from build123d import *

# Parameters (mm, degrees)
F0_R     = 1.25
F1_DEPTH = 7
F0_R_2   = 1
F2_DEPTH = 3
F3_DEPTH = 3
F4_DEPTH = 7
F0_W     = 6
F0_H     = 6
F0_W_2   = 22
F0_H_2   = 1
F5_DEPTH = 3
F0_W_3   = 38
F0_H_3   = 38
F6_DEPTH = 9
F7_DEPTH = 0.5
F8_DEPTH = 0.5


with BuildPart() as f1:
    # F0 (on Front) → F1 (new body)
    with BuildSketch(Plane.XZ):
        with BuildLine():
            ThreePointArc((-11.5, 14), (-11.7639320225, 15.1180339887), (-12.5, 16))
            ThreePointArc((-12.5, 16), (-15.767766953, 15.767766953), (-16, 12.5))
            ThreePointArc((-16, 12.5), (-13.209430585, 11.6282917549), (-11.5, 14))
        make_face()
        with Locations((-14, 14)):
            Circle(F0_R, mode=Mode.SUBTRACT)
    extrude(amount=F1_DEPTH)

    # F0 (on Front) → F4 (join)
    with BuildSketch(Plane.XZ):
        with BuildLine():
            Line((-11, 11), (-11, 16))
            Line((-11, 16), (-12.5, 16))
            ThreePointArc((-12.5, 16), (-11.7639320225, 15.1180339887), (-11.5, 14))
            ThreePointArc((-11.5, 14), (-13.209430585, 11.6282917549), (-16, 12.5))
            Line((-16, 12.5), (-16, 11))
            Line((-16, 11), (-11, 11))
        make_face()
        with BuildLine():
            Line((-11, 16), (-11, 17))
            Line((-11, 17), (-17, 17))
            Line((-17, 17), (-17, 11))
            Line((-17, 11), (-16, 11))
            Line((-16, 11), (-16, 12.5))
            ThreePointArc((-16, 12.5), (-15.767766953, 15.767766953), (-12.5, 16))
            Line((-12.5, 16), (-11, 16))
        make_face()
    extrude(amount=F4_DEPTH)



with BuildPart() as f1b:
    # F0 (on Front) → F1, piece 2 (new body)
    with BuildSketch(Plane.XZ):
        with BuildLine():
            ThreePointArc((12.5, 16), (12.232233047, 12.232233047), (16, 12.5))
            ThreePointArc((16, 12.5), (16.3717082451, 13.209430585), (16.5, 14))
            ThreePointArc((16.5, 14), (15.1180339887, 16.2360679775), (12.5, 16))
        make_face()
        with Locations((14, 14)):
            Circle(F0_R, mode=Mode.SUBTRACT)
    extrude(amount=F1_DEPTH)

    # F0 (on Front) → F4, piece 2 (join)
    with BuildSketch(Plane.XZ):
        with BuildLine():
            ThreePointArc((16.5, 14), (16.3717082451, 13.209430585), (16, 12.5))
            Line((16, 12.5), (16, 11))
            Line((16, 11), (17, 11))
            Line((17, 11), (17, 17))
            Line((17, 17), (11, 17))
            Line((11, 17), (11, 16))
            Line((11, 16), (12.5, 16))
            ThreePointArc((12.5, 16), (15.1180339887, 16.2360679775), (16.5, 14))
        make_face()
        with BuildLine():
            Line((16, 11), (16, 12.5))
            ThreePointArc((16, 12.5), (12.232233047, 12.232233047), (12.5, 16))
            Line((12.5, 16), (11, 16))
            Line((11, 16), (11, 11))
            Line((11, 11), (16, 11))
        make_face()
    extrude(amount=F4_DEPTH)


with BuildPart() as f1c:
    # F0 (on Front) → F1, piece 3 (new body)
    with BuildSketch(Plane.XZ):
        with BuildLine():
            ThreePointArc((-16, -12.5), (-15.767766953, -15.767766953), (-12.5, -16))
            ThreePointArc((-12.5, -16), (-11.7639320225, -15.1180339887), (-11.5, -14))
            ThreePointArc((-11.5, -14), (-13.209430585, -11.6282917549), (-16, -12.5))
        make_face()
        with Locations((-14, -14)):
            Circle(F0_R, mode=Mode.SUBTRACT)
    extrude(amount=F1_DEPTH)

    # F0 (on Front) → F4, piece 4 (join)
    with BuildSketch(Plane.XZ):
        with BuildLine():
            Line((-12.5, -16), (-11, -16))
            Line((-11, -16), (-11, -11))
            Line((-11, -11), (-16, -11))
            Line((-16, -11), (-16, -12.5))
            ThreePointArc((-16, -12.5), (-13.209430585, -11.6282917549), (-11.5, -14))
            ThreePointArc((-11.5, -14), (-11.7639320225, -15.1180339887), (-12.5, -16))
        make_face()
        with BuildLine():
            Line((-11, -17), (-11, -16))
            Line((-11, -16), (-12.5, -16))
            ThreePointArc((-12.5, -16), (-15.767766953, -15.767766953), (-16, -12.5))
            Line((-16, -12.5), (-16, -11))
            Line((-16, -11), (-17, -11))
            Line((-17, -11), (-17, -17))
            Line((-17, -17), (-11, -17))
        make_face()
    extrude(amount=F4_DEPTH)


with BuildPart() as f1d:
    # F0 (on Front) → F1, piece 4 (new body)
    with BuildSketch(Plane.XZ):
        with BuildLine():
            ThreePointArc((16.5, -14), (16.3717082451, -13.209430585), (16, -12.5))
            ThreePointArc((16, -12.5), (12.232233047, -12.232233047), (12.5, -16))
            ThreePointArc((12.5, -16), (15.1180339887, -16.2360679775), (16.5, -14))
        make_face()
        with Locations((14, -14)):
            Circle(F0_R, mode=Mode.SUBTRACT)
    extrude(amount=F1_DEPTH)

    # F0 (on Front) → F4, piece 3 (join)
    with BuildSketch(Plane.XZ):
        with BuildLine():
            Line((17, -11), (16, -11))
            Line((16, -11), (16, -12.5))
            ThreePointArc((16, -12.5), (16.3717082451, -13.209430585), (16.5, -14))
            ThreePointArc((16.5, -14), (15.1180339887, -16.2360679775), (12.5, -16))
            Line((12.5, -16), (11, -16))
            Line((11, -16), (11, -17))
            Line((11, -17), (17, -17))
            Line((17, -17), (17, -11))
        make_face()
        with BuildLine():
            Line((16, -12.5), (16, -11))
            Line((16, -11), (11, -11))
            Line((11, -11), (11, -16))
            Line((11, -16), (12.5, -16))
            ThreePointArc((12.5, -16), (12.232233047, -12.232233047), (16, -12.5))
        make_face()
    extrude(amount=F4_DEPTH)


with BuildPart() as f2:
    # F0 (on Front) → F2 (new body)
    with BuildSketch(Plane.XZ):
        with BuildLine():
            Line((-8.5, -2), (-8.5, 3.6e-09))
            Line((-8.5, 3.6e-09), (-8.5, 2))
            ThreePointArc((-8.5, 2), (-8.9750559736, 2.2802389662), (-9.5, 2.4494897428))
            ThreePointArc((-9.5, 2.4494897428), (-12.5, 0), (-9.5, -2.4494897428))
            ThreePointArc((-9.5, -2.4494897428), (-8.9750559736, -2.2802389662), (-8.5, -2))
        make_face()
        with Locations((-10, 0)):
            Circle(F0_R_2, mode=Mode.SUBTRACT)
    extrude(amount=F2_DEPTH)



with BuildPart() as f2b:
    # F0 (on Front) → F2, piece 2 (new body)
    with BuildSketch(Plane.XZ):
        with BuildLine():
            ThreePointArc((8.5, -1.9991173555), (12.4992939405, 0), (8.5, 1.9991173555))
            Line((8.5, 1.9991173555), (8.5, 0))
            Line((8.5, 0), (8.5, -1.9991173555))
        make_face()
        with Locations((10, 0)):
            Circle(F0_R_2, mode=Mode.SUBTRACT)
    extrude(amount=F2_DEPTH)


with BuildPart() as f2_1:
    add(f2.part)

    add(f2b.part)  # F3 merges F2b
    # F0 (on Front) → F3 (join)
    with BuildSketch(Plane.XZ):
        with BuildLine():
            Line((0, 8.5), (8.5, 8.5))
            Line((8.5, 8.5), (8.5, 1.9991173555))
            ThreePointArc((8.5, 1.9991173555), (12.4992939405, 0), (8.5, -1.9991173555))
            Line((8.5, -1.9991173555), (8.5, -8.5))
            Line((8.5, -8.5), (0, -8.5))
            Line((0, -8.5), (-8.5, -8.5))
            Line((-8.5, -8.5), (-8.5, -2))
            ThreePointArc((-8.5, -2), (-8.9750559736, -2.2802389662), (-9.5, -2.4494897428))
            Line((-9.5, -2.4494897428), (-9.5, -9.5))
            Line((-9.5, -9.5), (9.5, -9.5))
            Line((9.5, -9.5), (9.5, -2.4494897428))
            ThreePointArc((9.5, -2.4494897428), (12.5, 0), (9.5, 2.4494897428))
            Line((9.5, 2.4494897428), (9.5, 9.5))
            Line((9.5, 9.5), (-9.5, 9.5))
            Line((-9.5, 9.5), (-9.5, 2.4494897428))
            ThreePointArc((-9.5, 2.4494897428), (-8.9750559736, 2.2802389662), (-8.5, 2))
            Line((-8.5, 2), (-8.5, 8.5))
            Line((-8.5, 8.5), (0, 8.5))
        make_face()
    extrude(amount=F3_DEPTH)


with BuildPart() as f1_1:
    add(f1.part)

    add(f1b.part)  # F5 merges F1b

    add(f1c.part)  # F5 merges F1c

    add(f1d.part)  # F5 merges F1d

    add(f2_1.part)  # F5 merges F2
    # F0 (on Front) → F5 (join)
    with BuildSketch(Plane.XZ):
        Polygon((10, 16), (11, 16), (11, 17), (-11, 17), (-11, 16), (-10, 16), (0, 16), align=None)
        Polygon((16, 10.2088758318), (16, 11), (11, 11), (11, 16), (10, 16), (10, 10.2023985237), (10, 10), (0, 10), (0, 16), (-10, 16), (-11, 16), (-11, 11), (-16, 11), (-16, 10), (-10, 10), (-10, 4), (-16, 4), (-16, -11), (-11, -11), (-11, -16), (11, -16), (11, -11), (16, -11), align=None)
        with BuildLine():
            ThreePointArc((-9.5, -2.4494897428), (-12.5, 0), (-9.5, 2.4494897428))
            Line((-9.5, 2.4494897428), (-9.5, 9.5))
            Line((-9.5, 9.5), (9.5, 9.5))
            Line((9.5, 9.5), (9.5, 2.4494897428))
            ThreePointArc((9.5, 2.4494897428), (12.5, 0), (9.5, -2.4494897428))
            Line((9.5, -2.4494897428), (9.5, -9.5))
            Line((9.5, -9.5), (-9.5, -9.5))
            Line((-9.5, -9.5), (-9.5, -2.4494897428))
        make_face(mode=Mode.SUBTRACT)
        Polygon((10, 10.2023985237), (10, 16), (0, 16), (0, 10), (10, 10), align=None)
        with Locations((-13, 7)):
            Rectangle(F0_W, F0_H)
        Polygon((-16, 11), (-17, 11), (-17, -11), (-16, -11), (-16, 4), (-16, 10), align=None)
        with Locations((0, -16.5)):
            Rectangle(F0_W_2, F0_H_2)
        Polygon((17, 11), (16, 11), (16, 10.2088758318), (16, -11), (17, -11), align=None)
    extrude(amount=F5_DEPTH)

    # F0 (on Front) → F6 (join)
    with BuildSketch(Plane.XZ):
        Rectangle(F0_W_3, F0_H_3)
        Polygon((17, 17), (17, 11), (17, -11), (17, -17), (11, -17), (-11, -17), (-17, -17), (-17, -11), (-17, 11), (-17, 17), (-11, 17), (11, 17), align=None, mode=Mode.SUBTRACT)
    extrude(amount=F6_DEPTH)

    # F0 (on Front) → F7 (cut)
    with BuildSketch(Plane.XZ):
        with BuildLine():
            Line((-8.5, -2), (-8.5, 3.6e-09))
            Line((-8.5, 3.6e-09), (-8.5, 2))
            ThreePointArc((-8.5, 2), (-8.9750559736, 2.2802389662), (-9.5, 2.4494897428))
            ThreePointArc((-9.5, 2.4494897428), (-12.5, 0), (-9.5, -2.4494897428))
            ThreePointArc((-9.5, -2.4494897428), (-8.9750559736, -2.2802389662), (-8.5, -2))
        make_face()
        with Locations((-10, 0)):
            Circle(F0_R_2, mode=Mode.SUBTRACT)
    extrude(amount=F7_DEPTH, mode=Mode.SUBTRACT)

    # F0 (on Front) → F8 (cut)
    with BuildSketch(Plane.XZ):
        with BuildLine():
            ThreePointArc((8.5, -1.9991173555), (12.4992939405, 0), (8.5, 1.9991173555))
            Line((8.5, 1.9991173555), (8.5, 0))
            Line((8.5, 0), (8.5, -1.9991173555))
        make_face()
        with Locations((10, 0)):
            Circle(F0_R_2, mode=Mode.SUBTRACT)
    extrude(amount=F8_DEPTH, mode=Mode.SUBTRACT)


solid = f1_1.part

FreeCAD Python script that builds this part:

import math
import FreeCAD as App
import Part
import Sketcher
from FreeCAD import Vector


def add_polygon(sketch, points):
    """Adds a closed chain of lines whose ends are joined by coincident constraints."""
    first, n = sketch.GeometryCount, len(points)
    for a, b in zip(points, points[1:] + points[:1]):
        sketch.addGeometry(Part.LineSegment(App.Vector(*a, 0), App.Vector(*b, 0)), False)
    for i in range(n):
        sketch.addConstraint(Sketcher.Constraint("Coincident", first + i, 2, first + (i + 1) % n, 1))

doc = App.newDocument("Part")
body = doc.addObject("PartDesign::Body", "Body")

# Sketch on XZ plane
sketch1 = body.newObject("Sketcher::SketchObject", "Sketch")
sketch1.AttachmentSupport = (doc.getObject("XZ_Plane"), [""])
sketch1.MapMode = "FlatFace"
sketch1.addGeometry([
    Part.ArcOfCircle(Part.Circle(Vector(-14, 14, 0), Vector(0, 0, 1), 2.5), math.radians(0), math.radians(53.130102)),
    Part.ArcOfCircle(Part.Circle(Vector(-14, 14, 0), Vector(0, 0, 1), 2.5), math.radians(53.130102), math.radians(360)),
    Part.Circle(Vector(-14, 14, 0), Vector(0, 0, 1), 1.25),
], False)
sketch1.addConstraint([
    Sketcher.Constraint("Tangent", 0, 1, 1, 2),
    Sketcher.Constraint("Coincident", 1, 1, 0, 2),
    Sketcher.Constraint("Coincident", 2, 3, 0, 3),
    Sketcher.Constraint("Horizontal", 2, 3, 0, 1),
    Sketcher.Constraint("Diameter", 2, 2.5),
    Sketcher.Constraint("Radius", 0, 2.5),
    Sketcher.Constraint("DistanceX", 0, 3, -1, 1, 14.0),
    Sketcher.Constraint("DistanceY", -1, 1, 0, 3, 14.0),
    Sketcher.Constraint("DistanceY", -1, 1, 1, 1, 16.0),
])
pad1 = body.newObject("PartDesign::Pad", "Pad")
pad1.Profile = sketch1
pad1.Length = 7

# Sketch on XZ plane
sketch2 = body.newObject("Sketcher::SketchObject", "Sketch001")
sketch2.AttachmentSupport = (doc.getObject("XZ_Plane"), [""])
sketch2.MapMode = "FlatFace"
add_polygon(sketch2, [(-11, 11), (-11, 17), (-17, 17), (-17, 11)])  # lines 0-3
sketch2.addGeometry(Part.ArcOfCircle(Part.Circle(Vector(-14, 14, 0), Vector(0, 0, 1), 2.5), math.radians(0), math.radians(53.130102)), False)  # 4
sketch2.addGeometry(Part.ArcOfCircle(Part.Circle(Vector(-14, 14, 0), Vector(0, 0, 1), 2.5), math.radians(53.130102), math.radians(360)), False)  # 5
sketch2.addConstraint([
    Sketcher.Constraint("Tangent", 4, 1, 5, 2),
    Sketcher.Constraint("Coincident", 5, 1, 4, 2),
    Sketcher.Constraint("Vertical", 0),
    Sketcher.Constraint("Horizontal", 1),
    Sketcher.Constraint("Vertical", 2),
    Sketcher.Constraint("Horizontal", 3),
    Sketcher.Constraint("Horizontal", 5, 3, 4, 1),
    Sketcher.Constraint("Equal", 3, 0),
    Sketcher.Constraint("Radius", 4, 2.5),
    Sketcher.Constraint("DistanceX", 1, 2, 1, 1, 6.0),
    Sketcher.Constraint("DistanceX", 4, 3, -1, 1, 14.0),
    Sketcher.Constraint("DistanceY", -1, 1, 4, 3, 14.0),
    Sketcher.Constraint("DistanceX", 0, 2, -1, 1, 11.0),
    Sketcher.Constraint("DistanceY", -1, 1, 0, 2, 17.0),
    Sketcher.Constraint("DistanceY", -1, 1, 5, 1, 16.0),
])
pad2 = body.newObject("PartDesign::Pad", "Pad001")
pad2.Profile = sketch2
pad2.Length = 7
body2 = doc.addObject("PartDesign::Body", "Body001")

# Sketch on XZ plane
sketch3 = body2.newObject("Sketcher::SketchObject", "Sketch002")
sketch3.AttachmentSupport = (doc.getObject("XZ_Plane001"), [""])
sketch3.MapMode = "FlatFace"
sketch3.addGeometry([
    Part.ArcOfCircle(Part.Circle(Vector(14, 14, 0), Vector(0, 0, 1), 2.5), math.radians(126.869898), math.radians(323.130102)),
    Part.ArcOfCircle(Part.Circle(Vector(14, 14, 0), Vector(0, 0, 1), 2.5), math.radians(-36.869898), math.radians(0)),
    Part.ArcOfCircle(Part.Circle(Vector(14, 14, 0), Vector(0, 0, 1), 2.5), math.radians(0), math.radians(126.869898)),
    Part.Circle(Vector(14, 14, 0), Vector(0, 0, 1), 1.25),
], False)
sketch3.addConstraint([
    Sketcher.Constraint("Tangent", 0, 2, 1, 1),
    Sketcher.Constraint("Tangent", 1, 2, 2, 1),
    Sketcher.Constraint("Tangent", 2, 2, 0, 1),
    Sketcher.Constraint("Coincident", 3, 3, 0, 3),
    Sketcher.Constraint("Horizontal", 3, 3, 1, 2),
    Sketcher.Constraint("Diameter", 3, 2.5),
    Sketcher.Constraint("Radius", 0, 2.5),
    Sketcher.Constraint("DistanceX", -1, 1, 0, 3, 14.0),
    Sketcher.Constraint("DistanceY", -1, 1, 0, 3, 14.0),
    Sketcher.Constraint("DistanceX", -1, 1, 0, 2, 16.0),
    Sketcher.Constraint("DistanceY", -1, 1, 2, 2, 16.0),
])
pad3 = body2.newObject("PartDesign::Pad", "Pad002")
pad3.Profile = sketch3
pad3.Length = 7

# Sketch on XZ plane
sketch4 = body2.newObject("Sketcher::SketchObject", "Sketch003")
sketch4.AttachmentSupport = (doc.getObject("XZ_Plane001"), [""])
sketch4.MapMode = "FlatFace"
add_polygon(sketch4, [(17, 11), (17, 17), (11, 17), (11, 11)])  # lines 0-3
sketch4.addGeometry(Part.ArcOfCircle(Part.Circle(Vector(14, 14, 0), Vector(0, 0, 1), 2.5), math.radians(-36.869898), math.radians(0)), False)  # 4
sketch4.addGeometry(Part.ArcOfCircle(Part.Circle(Vector(14, 14, 0), Vector(0, 0, 1), 2.5), math.radians(126.869898), math.radians(323.130102)), False)  # 5
sketch4.addGeometry(Part.ArcOfCircle(Part.Circle(Vector(14, 14, 0), Vector(0, 0, 1), 2.5), math.radians(0), math.radians(126.869898)), False)  # 6
sketch4.addConstraint([
    Sketcher.Constraint("Tangent", 4, 1, 5, 2),
    Sketcher.Constraint("Tangent", 5, 1, 6, 2),
    Sketcher.Constraint("Tangent", 6, 1, 4, 2),
    Sketcher.Constraint("Vertical", 0),
    Sketcher.Constraint("Horizontal", 1),
    Sketcher.Constraint("Vertical", 2),
    Sketcher.Constraint("Horizontal", 3),
    Sketcher.Constraint("Horizontal", 5, 3, 6, 1),
    Sketcher.Constraint("Equal", 3, 0),
    Sketcher.Constraint("Radius", 4, 2.5),
    Sketcher.Constraint("DistanceX", 1, 2, 1, 1, 6.0),
    Sketcher.Constraint("DistanceX", -1, 1, 4, 3, 14.0),
    Sketcher.Constraint("DistanceY", -1, 1, 4, 3, 14.0),
    Sketcher.Constraint("DistanceX", -1, 1, 0, 2, 17.0),
    Sketcher.Constraint("DistanceY", -1, 1, 0, 2, 17.0),
    Sketcher.Constraint("DistanceX", -1, 1, 4, 1, 16.0),
    Sketcher.Constraint("DistanceY", -1, 1, 5, 1, 16.0),
])
pad4 = body2.newObject("PartDesign::Pad", "Pad003")
pad4.Profile = sketch4
pad4.Length = 7
body3 = doc.addObject("PartDesign::Body", "Body002")

# Sketch on XZ plane
sketch5 = body3.newObject("Sketcher::SketchObject", "Sketch004")
sketch5.AttachmentSupport = (doc.getObject("XZ_Plane002"), [""])
sketch5.MapMode = "FlatFace"
sketch5.addGeometry([
    Part.ArcOfCircle(Part.Circle(Vector(-14, -14, 0), Vector(0, 0, 1), 2.5), math.radians(-53.130102), math.radians(0)),
    Part.ArcOfCircle(Part.Circle(Vector(-14, -14, 0), Vector(0, 0, 1), 2.5), math.radians(0), math.radians(306.869898)),
    Part.Circle(Vector(-14, -14, 0), Vector(0, 0, 1), 1.25),
], False)
sketch5.addConstraint([
    Sketcher.Constraint("Tangent", 0, 1, 1, 2),
    Sketcher.Constraint("Coincident", 1, 1, 0, 2),
    Sketcher.Constraint("Coincident", 2, 3, 0, 3),
    Sketcher.Constraint("Horizontal", 2, 3, 1, 1),
    Sketcher.Constraint("Diameter", 2, 2.5),
    Sketcher.Constraint("Radius", 0, 2.5),
    Sketcher.Constraint("DistanceX", 0, 3, -1, 1, 14.0),
    Sketcher.Constraint("DistanceY", 0, 3, -1, 1, 14.0),
    Sketcher.Constraint("DistanceY", 0, 1, -1, 1, 16.0),
])
pad5 = body3.newObject("PartDesign::Pad", "Pad004")
pad5.Profile = sketch5
pad5.Length = 7

# Sketch on XZ plane
sketch6 = body3.newObject("Sketcher::SketchObject", "Sketch005")
sketch6.AttachmentSupport = (doc.getObject("XZ_Plane002"), [""])
sketch6.MapMode = "FlatFace"
add_polygon(sketch6, [(-11, -11), (-17, -11), (-17, -17), (-11, -17)])  # lines 0-3
sketch6.addGeometry(Part.ArcOfCircle(Part.Circle(Vector(-14, -14, 0), Vector(0, 0, 1), 2.5), math.radians(-53.130102), math.radians(0)), False)  # 4
sketch6.addGeometry(Part.ArcOfCircle(Part.Circle(Vector(-14, -14, 0), Vector(0, 0, 1), 2.5), math.radians(0), math.radians(306.869898)), False)  # 5
sketch6.addConstraint([
    Sketcher.Constraint("Tangent", 4, 1, 5, 2),
    Sketcher.Constraint("Coincident", 5, 1, 4, 2),
    Sketcher.Constraint("Horizontal", 0),
    Sketcher.Constraint("Vertical", 1),
    Sketcher.Constraint("Horizontal", 2),
    Sketcher.Constraint("Vertical", 3),
    Sketcher.Constraint("Horizontal", 4, 3, 5, 1),
    Sketcher.Constraint("Equal", 2, 1),
    Sketcher.Constraint("Radius", 4, 2.5),
    Sketcher.Constraint("DistanceX", 0, 2, 0, 1, 6.0),
    Sketcher.Constraint("DistanceX", 4, 3, -1, 1, 14.0),
    Sketcher.Constraint("DistanceY", 4, 3, -1, 1, 14.0),
    Sketcher.Constraint("DistanceX", 0, 2, -1, 1, 17.0),
    Sketcher.Constraint("DistanceY", 0, 2, -1, 1, 11.0),
    Sketcher.Constraint("DistanceY", 4, 1, -1, 1, 16.0),
])
pad6 = body3.newObject("PartDesign::Pad", "Pad005")
pad6.Profile = sketch6
pad6.Length = 7
body4 = doc.addObject("PartDesign::Body", "Body003")

# Sketch on XZ plane
sketch7 = body4.newObject("Sketcher::SketchObject", "Sketch006")
sketch7.AttachmentSupport = (doc.getObject("XZ_Plane003"), [""])
sketch7.MapMode = "FlatFace"
sketch7.addGeometry([
    Part.ArcOfCircle(Part.Circle(Vector(14, -14, 0), Vector(0, 0, 1), 2.5), math.radians(0), math.radians(36.869898)),
    Part.ArcOfCircle(Part.Circle(Vector(14, -14, 0), Vector(0, 0, 1), 2.5), math.radians(36.869898), math.radians(233.130102)),
    Part.ArcOfCircle(Part.Circle(Vector(14, -14, 0), Vector(0, 0, 1), 2.5), math.radians(-126.869898), math.radians(0)),
    Part.Circle(Vector(14, -14, 0), Vector(0, 0, 1), 1.25),
], False)
sketch7.addConstraint([
    Sketcher.Constraint("Tangent", 0, 2, 1, 1),
    Sketcher.Constraint("Tangent", 1, 2, 2, 1),
    Sketcher.Constraint("Tangent", 2, 2, 0, 1),
    Sketcher.Constraint("Coincident", 3, 3, 0, 3),
    Sketcher.Constraint("Horizontal", 3, 3, 2, 2),
    Sketcher.Constraint("Diameter", 3, 2.5),
    Sketcher.Constraint("Radius", 0, 2.5),
    Sketcher.Constraint("DistanceX", -1, 1, 0, 3, 14.0),
    Sketcher.Constraint("DistanceY", 0, 3, -1, 1, 14.0),
    Sketcher.Constraint("DistanceX", -1, 1, 0, 2, 16.0),
    Sketcher.Constraint("DistanceY", 1, 2, -1, 1, 16.0),
])
pad7 = body4.newObject("PartDesign::Pad", "Pad006")
pad7.Profile = sketch7
pad7.Length = 7

# Sketch on XZ plane
sketch8 = body4.newObject("Sketcher::SketchObject", "Sketch007")
sketch8.AttachmentSupport = (doc.getObject("XZ_Plane003"), [""])
sketch8.MapMode = "FlatFace"
add_polygon(sketch8, [(17, -11), (11, -11), (11, -17), (17, -17)])  # lines 0-3
sketch8.addGeometry(Part.ArcOfCircle(Part.Circle(Vector(14, -14, 0), Vector(0, 0, 1), 2.5), math.radians(0), math.radians(36.869898)), False)  # 4
sketch8.addGeometry(Part.ArcOfCircle(Part.Circle(Vector(14, -14, 0), Vector(0, 0, 1), 2.5), math.radians(-126.869898), math.radians(0)), False)  # 5
sketch8.addGeometry(Part.ArcOfCircle(Part.Circle(Vector(14, -14, 0), Vector(0, 0, 1), 2.5), math.radians(36.869898), math.radians(233.130102)), False)  # 6
sketch8.addConstraint([
    Sketcher.Constraint("Tangent", 4, 1, 5, 2),
    Sketcher.Constraint("Tangent", 5, 1, 6, 2),
    Sketcher.Constraint("Tangent", 6, 1, 4, 2),
    Sketcher.Constraint("Horizontal", 0),
    Sketcher.Constraint("Vertical", 1),
    Sketcher.Constraint("Horizontal", 2),
    Sketcher.Constraint("Vertical", 3),
    Sketcher.Constraint("Horizontal", 6, 3, 4, 1),
    Sketcher.Constraint("Equal", 2, 1),
    Sketcher.Constraint("Radius", 4, 2.5),
    Sketcher.Constraint("DistanceX", 0, 2, 0, 1, 6.0),
    Sketcher.Constraint("DistanceX", -1, 1, 4, 3, 14.0),
    Sketcher.Constraint("DistanceY", 4, 3, -1, 1, 14.0),
    Sketcher.Constraint("DistanceX", -1, 1, 0, 2, 11.0),
    Sketcher.Constraint("DistanceY", 0, 2, -1, 1, 11.0),
    Sketcher.Constraint("DistanceY", 5, 1, -1, 1, 16.0),
    Sketcher.Constraint("DistanceX", -1, 1, 6, 1, 16.0),
])
pad8 = body4.newObject("PartDesign::Pad", "Pad007")
pad8.Profile = sketch8
pad8.Length = 7
body5 = doc.addObject("PartDesign::Body", "Body004")

# Sketch on XZ plane
sketch9 = body5.newObject("Sketcher::SketchObject", "Sketch008")
sketch9.AttachmentSupport = (doc.getObject("XZ_Plane004"), [""])
sketch9.MapMode = "FlatFace"
sketch9.addGeometry([
    Part.LineSegment(Vector(-8.5, -2, 0), Vector(-8.5, 2, 0)),  # 0
    Part.ArcOfCircle(Part.Circle(Vector(-10, 0, 0), Vector(0, 0, 1), 2.5), math.radians(53.130102), math.radians(78.463041)),  # 1
    Part.ArcOfCircle(Part.Circle(Vector(-10, 0, 0), Vector(0, 0, 1), 2.5), math.radians(78.463041), math.radians(281.536959)),  # 2
    Part.ArcOfCircle(Part.Circle(Vector(-10, 0, 0), Vector(0, 0, 1), 2.5), math.radians(-78.463041), math.radians(-53.130102)),  # 3
    Part.Circle(Vector(-10, 0, 0), Vector(0, 0, 1), 1),  # 4
], False)
sketch9.addConstraint([
    Sketcher.Constraint("Coincident", 0, 2, 1, 1),
    Sketcher.Constraint("Tangent", 1, 2, 2, 1),
    Sketcher.Constraint("Tangent", 2, 2, 3, 1),
    Sketcher.Constraint("Coincident", 3, 2, 0, 1),
    Sketcher.Constraint("Vertical", 0),
    Sketcher.Constraint("Coincident", 3, 3, 1, 3),
    Sketcher.Constraint("Coincident", 4, 3, 1, 3),
    Sketcher.Constraint("Symmetric", 1, 2, 2, 2, -1),
    Sketcher.Constraint("Diameter", 4, 2.0),
    Sketcher.Constraint("Radius", 1, 2.5),
    Sketcher.Constraint("DistanceY", 0, 1, 0, 2, 4.0),
    Sketcher.Constraint("DistanceX", 1, 3, -1, 1, 10.0),
    Sketcher.Constraint("DistanceX", 1, 2, 0, 2, 1.0),
])
pad9 = body5.newObject("PartDesign::Pad", "Pad008")
pad9.Profile = sketch9
pad9.Length = 3
body6 = doc.addObject("PartDesign::Body", "Body005")

# Sketch on XZ plane
sketch10 = body6.newObject("Sketcher::SketchObject", "Sketch009")
sketch10.AttachmentSupport = (doc.getObject("XZ_Plane005"), [""])
sketch10.MapMode = "FlatFace"
sketch10.addGeometry([
    Part.ArcOfCircle(Part.Circle(Vector(10, 0, 0), Vector(0, 0, 1), 2.499294), math.radians(-126.882038), math.radians(126.882038)),
    Part.LineSegment(Vector(8.5, 1.999117, 0), Vector(8.5, -1.999117, 0)),
    Part.Circle(Vector(10, 0, 0), Vector(0, 0, 1), 1),
], False)
sketch10.addConstraint([
    Sketcher.Constraint("Coincident", 0, 1, 1, 2),
    Sketcher.Constraint("Coincident", 1, 1, 0, 2),
    Sketcher.Constraint("Vertical", 1),
    Sketcher.Constraint("Coincident", 2, 3, 0, 3),
    Sketcher.Constraint("PointOnObject", 0, 3, -1),
    Sketcher.Constraint("Diameter", 2, 2.0),
    Sketcher.Constraint("DistanceX", -1, 1, 0, 3, 10.0),
    Sketcher.Constraint("DistanceX", -1, 1, 0, 1, 8.5),
    Sketcher.Constraint("Radius", 0, 2.499294),
])
pad10 = body6.newObject("PartDesign::Pad", "Pad009")
pad10.Profile = sketch10
pad10.Length = 3
body5.AllowCompound = True
doc.recompute()

boolean = body5.newObject("PartDesign::Boolean", "Boolean")
boolean.Type = "Fuse"
boolean.addObjects([body6])

# Sketch on XZ plane
sketch11 = body5.newObject("Sketcher::SketchObject", "Sketch010")
sketch11.AttachmentSupport = (doc.getObject("XZ_Plane004"), [""])
sketch11.MapMode = "FlatFace"
sketch11.addGeometry([
    Part.LineSegment(Vector(8.5, 8.5, 0), Vector(8.5, 1.999117, 0)),  # 0
    Part.ArcOfCircle(Part.Circle(Vector(10, 0, 0), Vector(0, 0, 1), 2.499294), math.radians(-126.882038), math.radians(126.882038)),  # 1
    Part.LineSegment(Vector(8.5, -1.999117, 0), Vector(8.5, -8.5, 0)),  # 2
    Part.LineSegment(Vector(8.5, -8.5, 0), Vector(-8.5, -8.5, 0)),  # 3
    Part.LineSegment(Vector(-8.5, -8.5, 0), Vector(-8.5, -2, 0)),  # 4
    Part.ArcOfCircle(Part.Circle(Vector(-10, 0, 0), Vector(0, 0, 1), 2.5), math.radians(-78.463041), math.radians(-53.130102)),  # 5
    Part.LineSegment(Vector(-9.5, -2.44949, 0), Vector(-9.5, -9.5, 0)),  # 6
    Part.LineSegment(Vector(-9.5, -9.5, 0), Vector(9.5, -9.5, 0)),  # 7
    Part.LineSegment(Vector(9.5, -9.5, 0), Vector(9.5, -2.44949, 0)),  # 8
    Part.ArcOfCircle(Part.Circle(Vector(10, 0, 0), Vector(0, 0, 1), 2.5), math.radians(-101.536959), math.radians(101.536959)),  # 9
    Part.LineSegment(Vector(9.5, 2.44949, 0), Vector(9.5, 9.5, 0)),  # 10
    Part.LineSegment(Vector(9.5, 9.5, 0), Vector(-9.5, 9.5, 0)),  # 11
    Part.LineSegment(Vector(-9.5, 9.5, 0), Vector(-9.5, 2.44949, 0)),  # 12
    Part.ArcOfCircle(Part.Circle(Vector(-10, 0, 0), Vector(0, 0, 1), 2.5), math.radians(53.130102), math.radians(78.463041)),  # 13
    Part.LineSegment(Vector(-8.5, 2, 0), Vector(-8.5, 8.5, 0)),  # 14
    Part.LineSegment(Vector(-8.5, 8.5, 0), Vector(8.5, 8.5, 0)),  # 15
], False)
sketch11.addConstraint([
    Sketcher.Constraint("Coincident", 0, 2, 1, 2),
    Sketcher.Constraint("Coincident", 1, 1, 2, 1),
    Sketcher.Constraint("Coincident", 2, 2, 3, 1),
    Sketcher.Constraint("Coincident", 3, 2, 4, 1),
    Sketcher.Constraint("Coincident", 4, 2, 5, 2),
    Sketcher.Constraint("Coincident", 5, 1, 6, 1),
    Sketcher.Constraint("Coincident", 6, 2, 7, 1),
    Sketcher.Constraint("Coincident", 7, 2, 8, 1),
    Sketcher.Constraint("Coincident", 8, 2, 9, 1),
    Sketcher.Constraint("Coincident", 9, 2, 10, 1),
    Sketcher.Constraint("Coincident", 10, 2, 11, 1),
    Sketcher.Constraint("Coincident", 11, 2, 12, 1),
    Sketcher.Constraint("Coincident", 12, 2, 13, 2),
    Sketcher.Constraint("Coincident", 13, 1, 14, 1),
    Sketcher.Constraint("Coincident", 14, 2, 15, 1),
    Sketcher.Constraint("Coincident", 15, 2, 0, 1),
    Sketcher.Constraint("Vertical", 0),
    Sketcher.Constraint("Vertical", 2),
    Sketcher.Constraint("Horizontal", 3),
    Sketcher.Constraint("Vertical", 4),
    Sketcher.Constraint("Vertical", 6),
    Sketcher.Constraint("Horizontal", 7),
    Sketcher.Constraint("Vertical", 8),
    Sketcher.Constraint("Vertical", 10),
    Sketcher.Constraint("Horizontal", 11),
    Sketcher.Constraint("Vertical", 12),
    Sketcher.Constraint("Vertical", 14),
    Sketcher.Constraint("Horizontal", 15),
    Sketcher.Constraint("Coincident", 9, 3, 1, 3),
    Sketcher.Constraint("Coincident", 13, 3, 5, 3),
    Sketcher.Constraint("Equal", 5, 9),
    Sketcher.Constraint("Equal", 9, 13),
    Sketcher.Constraint("Symmetric", 1, 3, 5, 3, -1, 1),
    Sketcher.Constraint("Symmetric", 6, 2, 10, 2, -1, 1),
    Sketcher.Constraint("Symmetric", 2, 2, 14, 2, -1, 1),
    Sketcher.Constraint("Symmetric", 5, 1, 8, 2, -2),
    Sketcher.Constraint("Horizontal", 9, 2, 12, 2),
    Sketcher.Constraint("Vertical", 0, 2, 1, 1),
    Sketcher.Constraint("Vertical", 4, 2, 13, 1),
    Sketcher.Constraint("Radius", 5, 2.5),
    Sketcher.Constraint("DistanceX", 3, 2, 3, 1, 17.0),
    Sketcher.Constraint("DistanceX", 7, 1, 7, 2, 19.0),
    Sketcher.Constraint("DistanceY", 4, 1, 4, 2, 6.5),
    Sketcher.Constraint("DistanceX", -1, 1, 1, 3, 10.0),
    Sketcher.Constraint("DistanceY", 6, 2, 3, 2, 1.0),
    Sketcher.Constraint("Radius", 1, 2.499294),
])
pad11 = body5.newObject("PartDesign::Pad", "Pad010")
pad11.Profile = sketch11
pad11.Length = 3
body.AllowCompound = True
doc.recompute()

boolean2 = body.newObject("PartDesign::Boolean", "Boolean001")
boolean2.Type = "Fuse"
boolean2.addObjects([body2])
doc.recompute()

boolean3 = body.newObject("PartDesign::Boolean", "Boolean002")
boolean3.Type = "Fuse"
boolean3.addObjects([body3])
doc.recompute()

boolean4 = body.newObject("PartDesign::Boolean", "Boolean003")
boolean4.Type = "Fuse"
boolean4.addObjects([body4])
doc.recompute()

boolean5 = body.newObject("PartDesign::Boolean", "Boolean004")
boolean5.Type = "Fuse"
boolean5.addObjects([body5])

# Sketch on XZ plane
sketch12 = body.newObject("Sketcher::SketchObject", "Sketch011")
sketch12.AttachmentSupport = (doc.getObject("XZ_Plane"), [""])
sketch12.MapMode = "FlatFace"
add_polygon(sketch12, [(11, 17), (-11, 17), (-11, 11), (-17, 11), (-17, -11), (-11, -11), (-11, -17), (11, -17), (11, -11), (17, -11), (17, 11), (11, 11)])  # lines 0-11
sketch12.addGeometry(Part.LineSegment(Vector(-9.5, -9.5, 0), Vector(-9.5, -2.44949, 0)), False)  # 12
sketch12.addGeometry(Part.ArcOfCircle(Part.Circle(Vector(-10, 0, 0), Vector(0, 0, 1), 2.5), math.radians(78.463041), math.radians(281.536959)), False)  # 13
sketch12.addGeometry(Part.LineSegment(Vector(-9.5, 2.44949, 0), Vector(-9.5, 9.5, 0)), False)  # 14
sketch12.addGeometry(Part.LineSegment(Vector(-9.5, 9.5, 0), Vector(9.5, 9.5, 0)), False)  # 15
sketch12.addGeometry(Part.LineSegment(Vector(9.5, 9.5, 0), Vector(9.5, 2.44949, 0)), False)  # 16
sketch12.addGeometry(Part.ArcOfCircle(Part.Circle(Vector(10, 0, 0), Vector(0, 0, 1), 2.5), math.radians(-101.536959), math.radians(101.536959)), False)  # 17
sketch12.addGeometry(Part.LineSegment(Vector(9.5, -2.44949, 0), Vector(9.5, -9.5, 0)), False)  # 18
sketch12.addGeometry(Part.LineSegment(Vector(9.5, -9.5, 0), Vector(-9.5, -9.5, 0)), False)  # 19
sketch12.addConstraint([
    Sketcher.Constraint("Coincident", 12, 2, 13, 2),
    Sketcher.Constraint("Coincident", 13, 1, 14, 1),
    Sketcher.Constraint("Coincident", 14, 2, 15, 1),
    Sketcher.Constraint("Coincident", 15, 2, 16, 1),
    Sketcher.Constraint("Coincident", 16, 2, 17, 2),
    Sketcher.Constraint("Coincident", 17, 1, 18, 1),
    Sketcher.Constraint("Coincident", 18, 2, 19, 1),
    Sketcher.Constraint("Coincident", 19, 2, 12, 1),
    Sketcher.Constraint("Horizontal", 0),
    Sketcher.Constraint("Vertical", 1),
    Sketcher.Constraint("Horizontal", 2),
    Sketcher.Constraint("Vertical", 3),
    Sketcher.Constraint("Horizontal", 4),
    Sketcher.Constraint("Vertical", 5),
    Sketcher.Constraint("Horizontal", 6),
    Sketcher.Constraint("Vertical", 7),
    Sketcher.Constraint("Horizontal", 8),
    Sketcher.Constraint("Vertical", 9),
    Sketcher.Constraint("Horizontal", 10),
    Sketcher.Constraint("Vertical", 11),
    Sketcher.Constraint("Vertical", 12),
    Sketcher.Constraint("Vertical", 14),
    Sketcher.Constraint("Horizontal", 15),
    Sketcher.Constraint("Vertical", 16),
    Sketcher.Constraint("Vertical", 18),
    Sketcher.Constraint("Horizontal", 19),
    Sketcher.Constraint("Equal", 13, 17),
    Sketcher.Constraint("Symmetric", 13, 3, 17, 3, -1, 1),
    Sketcher.Constraint("Symmetric", 0, 2, 6, 2, -1, 1),
    Sketcher.Constraint("Symmetric", 2, 2, 8, 2, -1, 1),
    Sketcher.Constraint("Symmetric", 4, 2, 10, 2, -1, 1),
    Sketcher.Constraint("Symmetric", 14, 2, 18, 2, -1, 1),
    Sketcher.Constraint("Symmetric", 4, 2, 7, 2, -2),
    Sketcher.Constraint("Symmetric", 13, 1, 16, 2, -2),
    Sketcher.Constraint("Horizontal", 12, 2, 17, 1),
    Sketcher.Constraint("Equal", 10, 1),
    Sketcher.Constraint("Equal", 6, 3),
    Sketcher.Constraint("Radius", 13, 2.5),
    Sketcher.Constraint("DistanceX", 0, 2, 0, 1, 22.0),
    Sketcher.Constraint("DistanceX", 2, 2, 2, 1, 6.0),
    Sketcher.Constraint("DistanceX", 15, 1, 15, 2, 19.0),
    Sketcher.Constraint("DistanceX", 13, 3, -1, 1, 10.0),
    Sketcher.Constraint("DistanceY", -1, 1, 14, 2, 9.5),
])
pad12 = body.newObject("PartDesign::Pad", "Pad011")
pad12.Profile = sketch12
pad12.Length = 3

# Sketch on XZ plane
sketch13 = body.newObject("Sketcher::SketchObject", "Sketch012")
sketch13.AttachmentSupport = (doc.getObject("XZ_Plane"), [""])
sketch13.MapMode = "FlatFace"
add_polygon(sketch13, [(-19, 19), (-19, -19), (19, -19), (19, 19)])  # lines 0-3
add_polygon(sketch13, [(-17, 17), (17, 17), (17, -17), (-17, -17)])  # lines 4-7
sketch13.addConstraint([
    Sketcher.Constraint("Vertical", 0),
    Sketcher.Constraint("Horizontal", 1),
    Sketcher.Constraint("Vertical", 2),
    Sketcher.Constraint("Horizontal", 3),
    Sketcher.Constraint("Horizontal", 4),
    Sketcher.Constraint("Vertical", 5),
    Sketcher.Constraint("Horizontal", 6),
    Sketcher.Constraint("Vertical", 7),
    Sketcher.Constraint("Symmetric", 0, 2, 2, 2, -1, 1),
    Sketcher.Constraint("Symmetric", 4, 2, 6, 2, -1, 1),
    Sketcher.Constraint("Equal", 3, 0),
    Sketcher.Constraint("Equal", 6, 5),
    Sketcher.Constraint("DistanceX", 1, 1, 1, 2, 38.0),
    Sketcher.Constraint("DistanceX", 4, 1, 4, 2, 34.0),
])
pad13 = body.newObject("PartDesign::Pad", "Pad012")
pad13.Profile = sketch13
pad13.Length = 9

# Sketch on XZ plane
sketch14 = body.newObject("Sketcher::SketchObject", "Sketch013")
sketch14.AttachmentSupport = (doc.getObject("XZ_Plane"), [""])
sketch14.MapMode = "FlatFace"
sketch14.addGeometry([
    Part.LineSegment(Vector(-8.5, -2, 0), Vector(-8.5, 2, 0)),  # 0
    Part.ArcOfCircle(Part.Circle(Vector(-10, 0, 0), Vector(0, 0, 1), 2.5), math.radians(53.130102), math.radians(78.463041)),  # 1
    Part.ArcOfCircle(Part.Circle(Vector(-10, 0, 0), Vector(0, 0, 1), 2.5), math.radians(78.463041), math.radians(281.536959)),  # 2
    Part.ArcOfCircle(Part.Circle(Vector(-10, 0, 0), Vector(0, 0, 1), 2.5), math.radians(-78.463041), math.radians(-53.130102)),  # 3
    Part.Circle(Vector(-10, 0, 0), Vector(0, 0, 1), 1),  # 4
], False)
sketch14.addConstraint([
    Sketcher.Constraint("Coincident", 0, 2, 1, 1),
    Sketcher.Constraint("Tangent", 1, 2, 2, 1),
    Sketcher.Constraint("Tangent", 2, 2, 3, 1),
    Sketcher.Constraint("Coincident", 3, 2, 0, 1),
    Sketcher.Constraint("Vertical", 0),
    Sketcher.Constraint("Coincident", 3, 3, 1, 3),
    Sketcher.Constraint("Coincident", 4, 3, 1, 3),
    Sketcher.Constraint("Symmetric", 1, 2, 2, 2, -1),
    Sketcher.Constraint("Diameter", 4, 2.0),
    Sketcher.Constraint("Radius", 1, 2.5),
    Sketcher.Constraint("DistanceY", 0, 1, 0, 2, 4.0),
    Sketcher.Constraint("DistanceX", 1, 3, -1, 1, 10.0),
    Sketcher.Constraint("DistanceX", 1, 2, 0, 2, 1.0),
])
pocket1 = body.newObject("PartDesign::Pocket", "Pocket")
pocket1.Profile = sketch14
pocket1.Length = 0.5
pocket1.Reversed = True

# Sketch on XZ plane
sketch15 = body.newObject("Sketcher::SketchObject", "Sketch014")
sketch15.AttachmentSupport = (doc.getObject("XZ_Plane"), [""])
sketch15.MapMode = "FlatFace"
sketch15.addGeometry([
    Part.ArcOfCircle(Part.Circle(Vector(10, 0, 0), Vector(0, 0, 1), 2.499294), math.radians(-126.882038), math.radians(126.882038)),
    Part.LineSegment(Vector(8.5, 1.999117, 0), Vector(8.5, -1.999117, 0)),
    Part.Circle(Vector(10, 0, 0), Vector(0, 0, 1), 1),
], False)
sketch15.addConstraint([
    Sketcher.Constraint("Coincident", 0, 1, 1, 2),
    Sketcher.Constraint("Coincident", 1, 1, 0, 2),
    Sketcher.Constraint("Vertical", 1),
    Sketcher.Constraint("Coincident", 2, 3, 0, 3),
    Sketcher.Constraint("PointOnObject", 0, 3, -1),
    Sketcher.Constraint("Diameter", 2, 2.0),
    Sketcher.Constraint("DistanceX", -1, 1, 0, 3, 10.0),
    Sketcher.Constraint("DistanceX", -1, 1, 0, 1, 8.5),
    Sketcher.Constraint("Radius", 0, 2.499294),
])
pocket2 = body.newObject("PartDesign::Pocket", "Pocket001")
pocket2.Profile = sketch15
pocket2.Length = 0.5
pocket2.Reversed = True

doc.recompute()
